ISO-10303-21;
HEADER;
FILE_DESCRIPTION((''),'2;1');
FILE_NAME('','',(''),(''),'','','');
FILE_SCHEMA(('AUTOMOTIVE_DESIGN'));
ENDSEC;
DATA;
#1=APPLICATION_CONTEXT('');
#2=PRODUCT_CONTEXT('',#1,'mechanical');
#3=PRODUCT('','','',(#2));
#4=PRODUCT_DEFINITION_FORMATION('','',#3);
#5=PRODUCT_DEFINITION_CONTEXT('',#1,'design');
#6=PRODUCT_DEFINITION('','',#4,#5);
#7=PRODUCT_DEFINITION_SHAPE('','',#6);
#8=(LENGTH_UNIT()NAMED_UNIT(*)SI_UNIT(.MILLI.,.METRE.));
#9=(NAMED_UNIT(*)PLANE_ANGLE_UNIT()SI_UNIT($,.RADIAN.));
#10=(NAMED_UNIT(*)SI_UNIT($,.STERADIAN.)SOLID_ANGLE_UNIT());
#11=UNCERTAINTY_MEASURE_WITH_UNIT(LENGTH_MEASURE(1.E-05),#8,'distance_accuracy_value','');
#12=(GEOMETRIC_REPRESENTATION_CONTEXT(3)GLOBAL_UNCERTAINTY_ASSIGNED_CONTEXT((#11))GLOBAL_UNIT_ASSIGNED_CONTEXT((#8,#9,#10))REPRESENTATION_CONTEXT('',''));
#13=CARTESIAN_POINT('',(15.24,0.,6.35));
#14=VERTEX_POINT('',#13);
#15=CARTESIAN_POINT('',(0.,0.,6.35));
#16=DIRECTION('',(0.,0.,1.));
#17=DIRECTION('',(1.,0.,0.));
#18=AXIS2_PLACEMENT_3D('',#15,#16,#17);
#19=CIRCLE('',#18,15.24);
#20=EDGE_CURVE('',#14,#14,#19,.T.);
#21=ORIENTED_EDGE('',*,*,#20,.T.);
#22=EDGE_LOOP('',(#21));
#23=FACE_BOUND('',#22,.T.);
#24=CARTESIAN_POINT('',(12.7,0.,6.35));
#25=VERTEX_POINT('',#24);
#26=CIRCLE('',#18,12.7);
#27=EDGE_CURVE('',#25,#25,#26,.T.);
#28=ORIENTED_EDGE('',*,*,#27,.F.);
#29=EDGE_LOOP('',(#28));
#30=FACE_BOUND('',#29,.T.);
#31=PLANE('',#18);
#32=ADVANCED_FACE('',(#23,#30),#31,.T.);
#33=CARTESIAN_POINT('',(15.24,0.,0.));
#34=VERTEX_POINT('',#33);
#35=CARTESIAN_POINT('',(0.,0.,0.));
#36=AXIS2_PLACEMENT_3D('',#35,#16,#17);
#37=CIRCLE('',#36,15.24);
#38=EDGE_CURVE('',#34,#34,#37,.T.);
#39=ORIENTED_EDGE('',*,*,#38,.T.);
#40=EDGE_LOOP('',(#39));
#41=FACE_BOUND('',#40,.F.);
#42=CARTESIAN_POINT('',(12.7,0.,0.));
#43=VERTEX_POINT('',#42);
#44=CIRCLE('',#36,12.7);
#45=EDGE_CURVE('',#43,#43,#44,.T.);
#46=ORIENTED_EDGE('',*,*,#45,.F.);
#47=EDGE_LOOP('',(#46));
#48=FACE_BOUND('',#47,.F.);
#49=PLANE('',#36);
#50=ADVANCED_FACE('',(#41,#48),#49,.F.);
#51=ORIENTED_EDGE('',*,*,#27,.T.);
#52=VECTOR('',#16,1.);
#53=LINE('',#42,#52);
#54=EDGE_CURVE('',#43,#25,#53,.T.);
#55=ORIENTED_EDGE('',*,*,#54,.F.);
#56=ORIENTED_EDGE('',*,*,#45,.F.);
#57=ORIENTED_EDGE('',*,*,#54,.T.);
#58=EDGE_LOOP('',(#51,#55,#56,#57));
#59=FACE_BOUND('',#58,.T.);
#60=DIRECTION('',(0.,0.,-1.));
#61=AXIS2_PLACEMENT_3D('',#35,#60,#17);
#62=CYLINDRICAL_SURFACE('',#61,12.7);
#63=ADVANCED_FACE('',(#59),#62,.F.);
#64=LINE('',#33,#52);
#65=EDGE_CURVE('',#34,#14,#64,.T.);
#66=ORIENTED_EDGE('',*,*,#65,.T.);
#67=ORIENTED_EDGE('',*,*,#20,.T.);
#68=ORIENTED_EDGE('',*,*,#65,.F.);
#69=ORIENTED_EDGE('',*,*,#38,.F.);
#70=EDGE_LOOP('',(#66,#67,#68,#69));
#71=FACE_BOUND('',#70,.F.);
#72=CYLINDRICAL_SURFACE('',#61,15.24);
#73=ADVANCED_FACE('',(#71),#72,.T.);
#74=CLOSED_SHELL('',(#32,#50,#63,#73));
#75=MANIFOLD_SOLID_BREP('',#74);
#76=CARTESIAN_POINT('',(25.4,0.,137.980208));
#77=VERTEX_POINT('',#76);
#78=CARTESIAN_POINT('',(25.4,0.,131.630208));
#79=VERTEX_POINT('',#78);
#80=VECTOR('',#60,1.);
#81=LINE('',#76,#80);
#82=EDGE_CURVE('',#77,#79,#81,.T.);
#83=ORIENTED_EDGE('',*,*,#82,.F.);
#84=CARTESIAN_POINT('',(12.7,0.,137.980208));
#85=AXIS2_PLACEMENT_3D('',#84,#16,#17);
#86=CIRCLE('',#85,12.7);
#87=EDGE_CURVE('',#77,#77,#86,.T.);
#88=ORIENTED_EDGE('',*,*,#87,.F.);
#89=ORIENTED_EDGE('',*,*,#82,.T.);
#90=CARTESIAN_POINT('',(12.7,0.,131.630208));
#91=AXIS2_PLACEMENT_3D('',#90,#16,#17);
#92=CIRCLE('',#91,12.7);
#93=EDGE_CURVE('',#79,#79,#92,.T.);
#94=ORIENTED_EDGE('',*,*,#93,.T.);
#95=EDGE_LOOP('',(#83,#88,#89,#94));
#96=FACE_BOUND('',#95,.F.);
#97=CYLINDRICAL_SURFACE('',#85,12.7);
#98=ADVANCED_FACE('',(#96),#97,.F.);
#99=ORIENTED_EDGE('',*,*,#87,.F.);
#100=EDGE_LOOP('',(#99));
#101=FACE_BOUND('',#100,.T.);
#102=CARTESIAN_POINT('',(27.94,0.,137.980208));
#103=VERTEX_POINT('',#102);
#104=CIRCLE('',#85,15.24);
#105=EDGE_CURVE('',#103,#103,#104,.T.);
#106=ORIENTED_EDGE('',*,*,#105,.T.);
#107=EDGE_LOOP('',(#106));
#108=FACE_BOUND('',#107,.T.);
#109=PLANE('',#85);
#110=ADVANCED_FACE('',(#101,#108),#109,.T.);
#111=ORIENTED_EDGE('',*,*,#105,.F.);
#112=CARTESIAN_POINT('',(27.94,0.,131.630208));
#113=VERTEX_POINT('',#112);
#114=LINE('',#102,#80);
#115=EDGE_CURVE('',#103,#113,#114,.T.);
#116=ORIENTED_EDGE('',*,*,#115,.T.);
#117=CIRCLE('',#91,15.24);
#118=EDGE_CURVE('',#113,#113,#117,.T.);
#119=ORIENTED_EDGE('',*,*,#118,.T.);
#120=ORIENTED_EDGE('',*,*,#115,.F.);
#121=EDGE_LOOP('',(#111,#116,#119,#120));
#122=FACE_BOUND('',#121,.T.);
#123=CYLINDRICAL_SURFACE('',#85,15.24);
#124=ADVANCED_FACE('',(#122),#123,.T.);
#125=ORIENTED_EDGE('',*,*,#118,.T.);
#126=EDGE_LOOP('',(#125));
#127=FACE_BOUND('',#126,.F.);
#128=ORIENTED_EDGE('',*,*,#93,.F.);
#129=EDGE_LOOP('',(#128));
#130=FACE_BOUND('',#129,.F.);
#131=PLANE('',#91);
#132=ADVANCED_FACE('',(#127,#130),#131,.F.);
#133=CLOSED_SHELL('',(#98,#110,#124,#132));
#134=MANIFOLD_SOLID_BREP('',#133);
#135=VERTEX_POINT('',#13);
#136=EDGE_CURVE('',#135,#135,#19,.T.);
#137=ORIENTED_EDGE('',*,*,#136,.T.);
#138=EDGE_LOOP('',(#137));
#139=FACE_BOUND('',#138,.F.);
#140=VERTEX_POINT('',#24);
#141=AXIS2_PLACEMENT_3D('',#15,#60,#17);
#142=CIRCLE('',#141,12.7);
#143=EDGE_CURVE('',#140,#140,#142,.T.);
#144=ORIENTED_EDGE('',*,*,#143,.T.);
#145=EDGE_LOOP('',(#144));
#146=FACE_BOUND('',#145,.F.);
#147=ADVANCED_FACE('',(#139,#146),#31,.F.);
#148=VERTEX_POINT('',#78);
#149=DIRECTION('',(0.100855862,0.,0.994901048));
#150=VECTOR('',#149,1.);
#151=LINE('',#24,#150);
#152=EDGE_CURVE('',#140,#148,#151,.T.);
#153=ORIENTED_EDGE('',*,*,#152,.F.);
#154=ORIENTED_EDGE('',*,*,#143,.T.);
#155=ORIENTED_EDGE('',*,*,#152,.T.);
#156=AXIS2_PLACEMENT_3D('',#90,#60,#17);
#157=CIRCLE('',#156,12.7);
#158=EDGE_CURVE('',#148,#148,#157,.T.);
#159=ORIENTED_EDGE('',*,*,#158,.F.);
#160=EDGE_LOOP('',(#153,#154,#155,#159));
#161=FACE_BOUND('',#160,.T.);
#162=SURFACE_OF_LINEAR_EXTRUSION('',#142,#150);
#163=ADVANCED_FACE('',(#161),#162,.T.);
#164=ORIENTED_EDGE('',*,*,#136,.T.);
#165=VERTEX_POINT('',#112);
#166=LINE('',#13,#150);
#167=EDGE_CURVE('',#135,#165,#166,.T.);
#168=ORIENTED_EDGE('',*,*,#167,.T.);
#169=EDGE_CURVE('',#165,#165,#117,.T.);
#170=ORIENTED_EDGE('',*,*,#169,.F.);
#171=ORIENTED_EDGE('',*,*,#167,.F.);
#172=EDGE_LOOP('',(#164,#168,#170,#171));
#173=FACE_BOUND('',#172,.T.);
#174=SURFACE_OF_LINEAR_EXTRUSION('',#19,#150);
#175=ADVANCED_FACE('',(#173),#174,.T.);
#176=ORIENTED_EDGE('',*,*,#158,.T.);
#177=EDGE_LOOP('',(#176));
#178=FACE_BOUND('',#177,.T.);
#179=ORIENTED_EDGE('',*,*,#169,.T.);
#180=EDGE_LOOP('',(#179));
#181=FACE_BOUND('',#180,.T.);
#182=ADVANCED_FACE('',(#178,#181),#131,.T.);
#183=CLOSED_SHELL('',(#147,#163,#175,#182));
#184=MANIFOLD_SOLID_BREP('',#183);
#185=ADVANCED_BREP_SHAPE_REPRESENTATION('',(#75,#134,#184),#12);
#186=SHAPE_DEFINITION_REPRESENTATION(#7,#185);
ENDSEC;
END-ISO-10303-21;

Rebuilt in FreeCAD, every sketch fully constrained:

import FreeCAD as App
import Part
import Sketcher
from FreeCAD import Vector
Q = App.Units.Quantity

doc = App.newDocument("Part")
body = doc.addObject("PartDesign::Body", "Body")

sketch1 = body.newObject("Sketcher::SketchObject", "Sketch")
sketch1.AttachmentSupport = (doc.getObject("XY_Plane"), [""])
sketch1.MapMode = "FlatFace"
sketch1.addGeometry([
    Part.Circle(Vector(0, 0, 0), Vector(0, 0, 1), 15),
    Part.Circle(Vector(0, 0, 0), Vector(0, 0, 1), 13),
], False)
sketch1.addConstraint([
    Sketcher.Constraint("Coincident", 0, 3, -1, 1),
    Sketcher.Constraint("Coincident", 1, 3, -1, 1),
    Sketcher.Constraint("Diameter", 1, Q("1 in")),
    Sketcher.Constraint("Diameter", 0, Q("1.2 in")),
])
pad1 = body.newObject("PartDesign::Pad", "Pad")
pad1.Profile = sketch1
pad1.Length = Q("0.25 in")
body2 = doc.addObject("PartDesign::Body", "Body001")

sketch2 = body2.newObject("Sketcher::SketchObject", "Sketch001")
sketch2.AttachmentSupport = (doc.getObject("XY_Plane001"), [""])
sketch2.MapMode = "FlatFace"
sketch2.AttachmentOffset = App.Placement(Vector(0, 0, 137.980208), App.Rotation())
sketch2.addGeometry([
    Part.Circle(Vector(13, 0, 0), Vector(0, 0, 1), 15),
    Part.Circle(Vector(13, 0, 0), Vector(0, 0, 1), 13),
], False)
sketch2.addConstraint([
    Sketcher.Constraint("Coincident", 1, 3, 0, 3),
    Sketcher.Constraint("PointOnObject", 0, 3, -1),
    Sketcher.Constraint("Diameter", 1, Q("1 in")),
    Sketcher.Constraint("Diameter", 0, Q("1.2 in")),
    Sketcher.Constraint("DistanceX", -1, 1, 0, 3, Q("0.5 in")),
])
pad2 = body2.newObject("PartDesign::Pad", "Pad001")
pad2.Profile = sketch2
pad2.Length = Q("0.25 in")
pad2.Reversed = True
body3 = doc.addObject("PartDesign::Body", "Body002")

sketch3 = body3.newObject("Sketcher::SketchObject", "Sketch002")
sketch3.AttachmentSupport = (doc.getObject("XY_Plane002"), [""])
sketch3.MapMode = "FlatFace"
sketch3.AttachmentOffset = App.Placement(Vector(0, 0, 0.25 * 25.4), App.Rotation())
sketch3.addGeometry([
    Part.Circle(Vector(0, 0, 0), Vector(0, 0, 1), 15),
    Part.Circle(Vector(0, 0, 0), Vector(0, 0, 1), 13),
], False)
sketch3.addConstraint([
    Sketcher.Constraint("Coincident", 0, 3, -1, 1),
    Sketcher.Constraint("Coincident", 1, 3, -1, 1),
    Sketcher.Constraint("Diameter", 1, Q("1 in")),
    Sketcher.Constraint("Diameter", 0, Q("1.2 in")),
])

sketch4 = body3.newObject("Sketcher::SketchObject", "Sketch003")
sketch4.Placement = App.Placement(Vector(-0.637169, 0, 0.064592), App.Rotation(Vector(0.100855862, 0, 0.994901048), Vector(0, 1, 0), Vector(-0.994901048, 0, 0.100855862), "ZXY"))
sketch4.addGeometry(Part.LineSegment(Vector(6, 0, 0), Vector(132, 0, 0)), False)
sketch4.addConstraint([
    Sketcher.Constraint("Horizontal", 0),
    Sketcher.Constraint("PointOnObject", 0, 1, -1),
    Sketcher.Constraint("DistanceX", 0, 1, 0, 2, 125.92228),
    Sketcher.Constraint("DistanceX", -1, 1, 0, 2, 132.239901),
])
doc.recompute()

additivepipe = body3.newObject("PartDesign::AdditivePipe", "AdditivePipe")
additivepipe.Profile = sketch3
additivepipe.Spine = (sketch4, ["Edge1"])

doc.recompute()
